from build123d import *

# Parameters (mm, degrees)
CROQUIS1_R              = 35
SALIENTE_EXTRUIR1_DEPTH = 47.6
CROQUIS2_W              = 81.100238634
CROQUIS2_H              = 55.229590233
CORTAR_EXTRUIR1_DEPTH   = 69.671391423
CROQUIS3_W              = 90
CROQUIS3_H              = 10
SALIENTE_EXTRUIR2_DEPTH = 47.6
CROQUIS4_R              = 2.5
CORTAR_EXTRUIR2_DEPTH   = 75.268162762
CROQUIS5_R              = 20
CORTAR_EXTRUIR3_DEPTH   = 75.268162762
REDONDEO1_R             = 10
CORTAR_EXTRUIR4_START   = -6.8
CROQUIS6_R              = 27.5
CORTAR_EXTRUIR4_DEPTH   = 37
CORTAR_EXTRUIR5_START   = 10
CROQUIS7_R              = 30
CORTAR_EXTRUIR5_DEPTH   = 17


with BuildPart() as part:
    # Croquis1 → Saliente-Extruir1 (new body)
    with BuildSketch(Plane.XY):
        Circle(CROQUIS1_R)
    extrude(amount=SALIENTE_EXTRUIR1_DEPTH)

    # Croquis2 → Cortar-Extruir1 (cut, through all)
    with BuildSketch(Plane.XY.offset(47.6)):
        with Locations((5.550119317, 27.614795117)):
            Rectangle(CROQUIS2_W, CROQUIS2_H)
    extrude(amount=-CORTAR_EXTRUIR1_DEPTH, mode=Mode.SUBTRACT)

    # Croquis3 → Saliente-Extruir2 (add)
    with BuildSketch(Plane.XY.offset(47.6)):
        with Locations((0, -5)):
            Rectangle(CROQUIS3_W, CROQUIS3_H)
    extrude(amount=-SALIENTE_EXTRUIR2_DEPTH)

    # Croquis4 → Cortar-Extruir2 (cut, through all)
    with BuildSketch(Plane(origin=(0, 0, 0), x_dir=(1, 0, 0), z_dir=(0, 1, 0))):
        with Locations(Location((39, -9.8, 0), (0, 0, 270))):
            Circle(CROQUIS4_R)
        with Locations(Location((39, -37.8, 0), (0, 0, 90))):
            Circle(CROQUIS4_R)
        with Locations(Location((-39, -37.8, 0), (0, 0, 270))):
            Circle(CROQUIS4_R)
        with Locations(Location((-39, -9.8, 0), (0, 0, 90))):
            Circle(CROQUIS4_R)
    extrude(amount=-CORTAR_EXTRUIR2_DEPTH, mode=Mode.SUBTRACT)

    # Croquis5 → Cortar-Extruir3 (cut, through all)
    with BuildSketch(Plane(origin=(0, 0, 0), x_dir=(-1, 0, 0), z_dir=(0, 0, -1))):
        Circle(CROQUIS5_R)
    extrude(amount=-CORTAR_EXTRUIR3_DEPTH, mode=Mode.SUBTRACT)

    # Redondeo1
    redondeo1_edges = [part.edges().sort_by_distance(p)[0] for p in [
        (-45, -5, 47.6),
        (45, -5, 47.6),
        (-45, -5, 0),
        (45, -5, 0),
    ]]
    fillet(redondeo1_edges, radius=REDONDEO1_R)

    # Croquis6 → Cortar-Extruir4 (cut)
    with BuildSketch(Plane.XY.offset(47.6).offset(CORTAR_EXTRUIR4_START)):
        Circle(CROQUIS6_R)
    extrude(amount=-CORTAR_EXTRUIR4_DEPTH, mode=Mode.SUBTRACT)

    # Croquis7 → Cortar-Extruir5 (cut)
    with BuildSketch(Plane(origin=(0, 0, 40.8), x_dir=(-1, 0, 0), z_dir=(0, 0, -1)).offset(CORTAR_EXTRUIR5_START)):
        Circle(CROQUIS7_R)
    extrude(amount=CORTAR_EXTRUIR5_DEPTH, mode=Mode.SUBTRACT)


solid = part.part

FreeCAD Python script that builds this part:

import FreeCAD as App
import Part
import Sketcher
from FreeCAD import Vector
Q = App.Units.Quantity


def edges_at(feature, points):
    """Names of the edges that pass closest to the given points."""
    edges = feature.Shape.Edges
    near = lambda p: min(range(len(edges)), key=lambda i: edges[i].distToShape(Part.Vertex(*p))[0])
    return sorted({f"Edge{near(p) + 1}" for p in points})

doc = App.newDocument("Part")
params = doc.addObject("Spreadsheet::Sheet", "Params")
for row, (alias, value) in enumerate([
    ("sketch1_diameter", "70 mm"),
    ("pad1_length", "47.6 mm"),
    ("sketch3_width", "90 mm"),
    ("sketch3_height", "10 mm"),
    ("pad2_length", "47.6 mm"),
    ("sketch4_diameter", "5 mm"),
    ("sketch5_diameter", "40 mm"),
    ("fillet_radius", "10 mm"),
    ("sketch6_diameter", "55 mm"),
    ("pocket4_length", "37 mm"),
    ("sketch7_diameter", "60 mm"),
    ("pocket5_length", "17 mm"),
], start=1):
    params.set(f"A{row}", alias)
    params.set(f"B{row}", "=" + value)
    params.setAlias(f"B{row}", alias)

body = doc.addObject("PartDesign::Body", "Body")

# Sketch on XY plane
sketch1 = doc.addObject("Sketcher::SketchObject", "Sketch")
body.addObject(sketch1)
sketch1.AttachmentSupport = (doc.XY_Plane, [""])
sketch1.MapMode = "FlatFace"
sketch1.addGeometry(Part.Circle(Vector(0, 0, 0), Vector(0, 0, 1), 35), False)
sketch1.addConstraint(Sketcher.Constraint("Coincident", 0, 3, -1, 1))
sketch1.addConstraint(Sketcher.Constraint("Diameter", 0, Q("70 mm")))
sketch1.setExpression("Constraints[1]", "Params.sketch1_diameter")
pad1 = doc.addObject("PartDesign::Pad", "Pad")
body.addObject(pad1)
pad1.Profile = sketch1
pad1.setExpression("Length", "Params.pad1_length")

# Sketch on XY plane
sketch2 = doc.addObject("Sketcher::SketchObject", "Sketch001")
body.addObject(sketch2)
sketch2.AttachmentSupport = (doc.XY_Plane, [""])
sketch2.MapMode = "FlatFace"
sketch2.AttachmentOffset = App.Placement(Vector(0, 0, 47.6), App.Rotation())
sketch2.addGeometry(Part.LineSegment(Vector(-35, 55, 0), Vector(-35, 0, 0)), False)
sketch2.addGeometry(Part.LineSegment(Vector(-35, 0, 0), Vector(46, 0, 0)), False)
sketch2.addGeometry(Part.LineSegment(Vector(46, 0, 0), Vector(46, 55, 0)), False)
sketch2.addGeometry(Part.LineSegment(Vector(46, 55, 0), Vector(-35, 55, 0)), False)
sketch2.addConstraint(Sketcher.Constraint("Coincident", 0, 2, 1, 1))
sketch2.addConstraint(Sketcher.Constraint("Coincident", 1, 2, 2, 1))
sketch2.addConstraint(Sketcher.Constraint("Coincident", 2, 2, 3, 1))
sketch2.addConstraint(Sketcher.Constraint("Coincident", 3, 2, 0, 1))
sketch2.addConstraint(Sketcher.Constraint("Vertical", 0))
sketch2.addConstraint(Sketcher.Constraint("Horizontal", 1))
sketch2.addConstraint(Sketcher.Constraint("Vertical", 2))
sketch2.addConstraint(Sketcher.Constraint("Horizontal", 3))
sketch2.addConstraint(Sketcher.Constraint("PointOnObject", 0, 2, -1))
sketch2.addConstraint(Sketcher.Constraint("DistanceX", 0, 2, -1, 1, Q("35 mm")))
sketch2.addConstraint(Sketcher.Constraint("DistanceX", 1, 1, 1, 2, Q("81.100239 mm")))
sketch2.addConstraint(Sketcher.Constraint("DistanceY", 0, 2, 0, 1, Q("55.22959 mm")))
pocket1 = doc.addObject("PartDesign::Pocket", "Pocket")
body.addObject(pocket1)
pocket1.Profile = sketch2
pocket1.Type = "ThroughAll"

# Sketch on XY plane
sketch3 = doc.addObject("Sketcher::SketchObject", "Sketch002")
body.addObject(sketch3)
sketch3.AttachmentSupport = (doc.XY_Plane, [""])
sketch3.MapMode = "FlatFace"
sketch3.AttachmentOffset = App.Placement(Vector(0, 0, 47.6), App.Rotation())
sketch3.addGeometry(Part.LineSegment(Vector(-45, 0, 0), Vector(-45, -10, 0)), False)
sketch3.addGeometry(Part.LineSegment(Vector(-45, -10, 0), Vector(45, -10, 0)), False)
sketch3.addGeometry(Part.LineSegment(Vector(45, -10, 0), Vector(45, 0, 0)), False)
sketch3.addGeometry(Part.LineSegment(Vector(45, 0, 0), Vector(-45, 0, 0)), False)
sketch3.addConstraint(Sketcher.Constraint("Coincident", 0, 2, 1, 1))
sketch3.addConstraint(Sketcher.Constraint("Coincident", 1, 2, 2, 1))
sketch3.addConstraint(Sketcher.Constraint("Coincident", 2, 2, 3, 1))
sketch3.addConstraint(Sketcher.Constraint("Coincident", 3, 2, 0, 1))
sketch3.addConstraint(Sketcher.Constraint("Vertical", 0))
sketch3.addConstraint(Sketcher.Constraint("Horizontal", 1))
sketch3.addConstraint(Sketcher.Constraint("Vertical", 2))
sketch3.addConstraint(Sketcher.Constraint("Horizontal", 3))
sketch3.addConstraint(Sketcher.Constraint("Symmetric", 2, 2, 3, 2, -1, 1))
sketch3.addConstraint(Sketcher.Constraint("DistanceX", 1, 1, 1, 2, Q("90 mm")))
sketch3.addConstraint(Sketcher.Constraint("DistanceY", 0, 2, 0, 1, Q("10 mm")))
sketch3.setExpression("Constraints[9]", "Params.sketch3_width")
sketch3.setExpression("Constraints[10]", "Params.sketch3_height")
pad2 = doc.addObject("PartDesign::Pad", "Pad001")
body.addObject(pad2)
pad2.Profile = sketch3
pad2.setExpression("Length", "Params.pad2_length")
pad2.Reversed = True

# Sketch on XZ plane
sketch4 = doc.addObject("Sketcher::SketchObject", "Sketch003")
body.addObject(sketch4)
sketch4.AttachmentSupport = (doc.XZ_Plane, [""])
sketch4.MapMode = "FlatFace"
sketch4.addGeometry(Part.Circle(Vector(39, 9.8, 0), Vector(0, 0, 1), 2.5), False)
sketch4.addGeometry(Part.Circle(Vector(39, 37.8, 0), Vector(0, 0, 1), 2.5), False)
sketch4.addGeometry(Part.Circle(Vector(-39, 37.8, 0), Vector(0, 0, 1), 2.5), False)
sketch4.addGeometry(Part.Circle(Vector(-39, 9.8, 0), Vector(0, 0, 1), 2.5), False)
sketch4.addConstraint(Sketcher.Constraint("Equal", 0, 1))
sketch4.addConstraint(Sketcher.Constraint("Equal", 1, 2))
sketch4.addConstraint(Sketcher.Constraint("Equal", 2, 3))
sketch4.addConstraint(Sketcher.Constraint("Symmetric", 1, 3, 2, 3, -2))
sketch4.addConstraint(Sketcher.Constraint("Symmetric", 0, 3, 3, 3, -2))
sketch4.addConstraint(Sketcher.Constraint("Vertical", 0, 3, 1, 3))
sketch4.addConstraint(Sketcher.Constraint("Diameter", 0, Q("5 mm")))
sketch4.addConstraint(Sketcher.Constraint("DistanceX", -1, 1, 0, 3, Q("39 mm")))
sketch4.addConstraint(Sketcher.Constraint("DistanceY", 0, 3, 1, 3, Q("28 mm")))
sketch4.addConstraint(Sketcher.Constraint("DistanceY", -1, 1, 0, 3, Q("9.8 mm")))
sketch4.setExpression("Constraints[6]", "Params.sketch4_diameter")
pocket2 = doc.addObject("PartDesign::Pocket", "Pocket001")
body.addObject(pocket2)
pocket2.Profile = sketch4
pocket2.Type = "ThroughAll"
pocket2.Reversed = True

# Sketch on XY plane
sketch5 = doc.addObject("Sketcher::SketchObject", "Sketch004")
body.addObject(sketch5)
sketch5.AttachmentSupport = (doc.XY_Plane, [""])
sketch5.MapMode = "FlatFace"
sketch5.addGeometry(Part.Circle(Vector(0, 0, 0), Vector(0, 0, 1), 20), False)
sketch5.addConstraint(Sketcher.Constraint("Coincident", 0, 3, -1, 1))
sketch5.addConstraint(Sketcher.Constraint("Diameter", 0, Q("40 mm")))
sketch5.setExpression("Constraints[1]", "Params.sketch5_diameter")
pocket3 = doc.addObject("PartDesign::Pocket", "Pocket002")
body.addObject(pocket3)
pocket3.Profile = sketch5
pocket3.Type = "ThroughAll"
pocket3.Reversed = True
doc.recompute()

fillet = doc.addObject("PartDesign::Fillet", "Fillet")
body.addObject(fillet)
fillet.Base = (pocket3, edges_at(pocket3, [
    (-45, -5, 47.6),
    (45, -5, 47.6),
    (-45, -5, 0),
    (45, -5, 0),
]))
fillet.setExpression("Radius", "Params.fillet_radius")

# Sketch on XY plane
sketch6 = doc.addObject("Sketcher::SketchObject", "Sketch005")
body.addObject(sketch6)
sketch6.AttachmentSupport = (doc.XY_Plane, [""])
sketch6.MapMode = "FlatFace"
sketch6.AttachmentOffset = App.Placement(Vector(0, 0, 40.8), App.Rotation())
sketch6.addGeometry(Part.Circle(Vector(0, 0, 0), Vector(0, 0, 1), 28), False)
sketch6.addConstraint(Sketcher.Constraint("Coincident", 0, 3, -1, 1))
sketch6.addConstraint(Sketcher.Constraint("Diameter", 0, Q("55 mm")))
sketch6.setExpression("Constraints[1]", "Params.sketch6_diameter")
pocket4 = doc.addObject("PartDesign::Pocket", "Pocket003")
body.addObject(pocket4)
pocket4.Profile = sketch6
pocket4.setExpression("Length", "Params.pocket4_length")

# Sketch on XY plane
sketch7 = doc.addObject("Sketcher::SketchObject", "Sketch006")
body.addObject(sketch7)
sketch7.AttachmentSupport = (doc.XY_Plane, [""])
sketch7.MapMode = "FlatFace"
sketch7.AttachmentOffset = App.Placement(Vector(0, 0, 30.8), App.Rotation())
sketch7.addGeometry(Part.Circle(Vector(0, 0, 0), Vector(0, 0, 1), 30), False)
sketch7.addConstraint(Sketcher.Constraint("Coincident", 0, 3, -1, 1))
sketch7.addConstraint(Sketcher.Constraint("Diameter", 0, Q("60 mm")))
sketch7.setExpression("Constraints[1]", "Params.sketch7_diameter")
pocket5 = doc.addObject("PartDesign::Pocket", "Pocket004")
body.addObject(pocket5)
pocket5.Profile = sketch7
pocket5.setExpression("Length", "Params.pocket5_length")

doc.recompute()
